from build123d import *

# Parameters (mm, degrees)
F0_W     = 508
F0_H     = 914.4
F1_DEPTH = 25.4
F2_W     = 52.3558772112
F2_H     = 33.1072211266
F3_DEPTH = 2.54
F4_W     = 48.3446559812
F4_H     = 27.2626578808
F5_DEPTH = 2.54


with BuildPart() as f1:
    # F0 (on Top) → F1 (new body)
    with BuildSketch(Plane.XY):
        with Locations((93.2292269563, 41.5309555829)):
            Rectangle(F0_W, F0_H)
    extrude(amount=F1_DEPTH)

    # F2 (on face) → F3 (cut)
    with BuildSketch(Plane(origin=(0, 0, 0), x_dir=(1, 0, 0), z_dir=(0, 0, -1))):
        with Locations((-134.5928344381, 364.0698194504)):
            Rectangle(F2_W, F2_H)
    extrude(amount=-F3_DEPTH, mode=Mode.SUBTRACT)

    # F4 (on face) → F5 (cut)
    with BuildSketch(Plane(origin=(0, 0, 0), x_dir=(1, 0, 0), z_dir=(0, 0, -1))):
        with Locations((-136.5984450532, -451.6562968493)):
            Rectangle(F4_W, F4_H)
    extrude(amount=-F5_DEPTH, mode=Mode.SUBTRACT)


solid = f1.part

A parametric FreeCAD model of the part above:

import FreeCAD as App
import Part
import Sketcher

V = App.Vector
Q = App.Units.Quantity

doc = App.newDocument("Part")
body = doc.addObject("PartDesign::Body", "Body")

# Sketch on XY plane
sketch1 = body.newObject("Sketcher::SketchObject", "Sketch")
sketch1.AttachmentSupport = (doc.getObject("XY_Plane"), [""])
sketch1.MapMode = "FlatFace"
sketch1.addGeometry(Part.LineSegment(V(-161, 499, 0), V(-161, -416, 0)), False)
sketch1.addGeometry(Part.LineSegment(V(-161, -416, 0), V(347, -416, 0)), False)
sketch1.addGeometry(Part.LineSegment(V(347, -416, 0), V(347, 499, 0)), False)
sketch1.addGeometry(Part.LineSegment(V(347, 499, 0), V(-161, 499, 0)), False)
sketch1.addConstraint(Sketcher.Constraint("Coincident", 0, 2, 1, 1))
sketch1.addConstraint(Sketcher.Constraint("Coincident", 1, 2, 2, 1))
sketch1.addConstraint(Sketcher.Constraint("Coincident", 2, 2, 3, 1))
sketch1.addConstraint(Sketcher.Constraint("Coincident", 3, 2, 0, 1))
sketch1.addConstraint(Sketcher.Constraint("Vertical", 0))
sketch1.addConstraint(Sketcher.Constraint("Horizontal", 1))
sketch1.addConstraint(Sketcher.Constraint("Vertical", 2))
sketch1.addConstraint(Sketcher.Constraint("Horizontal", 3))
sketch1.addConstraint(Sketcher.Constraint("DistanceX", 1, 1, 1, 2, Q("20 in")))
sketch1.addConstraint(Sketcher.Constraint("DistanceY", 0, 2, 0, 1, Q("36 in")))
sketch1.addConstraint(Sketcher.Constraint("DistanceX", 0, 2, -1, 1, 160.770773))
sketch1.addConstraint(Sketcher.Constraint("DistanceY", 0, 2, -1, 1, 415.669044))
pad1 = body.newObject("PartDesign::Pad", "Pad")
pad1.Profile = sketch1
pad1.Length = Q("1 in")

# Sketch on XY plane
sketch2 = body.newObject("Sketcher::SketchObject", "Sketch001")
sketch2.AttachmentSupport = (doc.getObject("XY_Plane"), [""])
sketch2.MapMode = "FlatFace"
sketch2.addGeometry(Part.LineSegment(V(-161, -381, 0), V(-161, -348, 0)), False)
sketch2.addGeometry(Part.LineSegment(V(-161, -348, 0), V(-108, -348, 0)), False)
sketch2.addGeometry(Part.LineSegment(V(-108, -348, 0), V(-108, -381, 0)), False)
sketch2.addGeometry(Part.LineSegment(V(-108, -381, 0), V(-161, -381, 0)), False)
sketch2.addConstraint(Sketcher.Constraint("Coincident", 0, 2, 1, 1))
sketch2.addConstraint(Sketcher.Constraint("Coincident", 1, 2, 2, 1))
sketch2.addConstraint(Sketcher.Constraint("Coincident", 2, 2, 3, 1))
sketch2.addConstraint(Sketcher.Constraint("Coincident", 3, 2, 0, 1))
sketch2.addConstraint(Sketcher.Constraint("Vertical", 0))
sketch2.addConstraint(Sketcher.Constraint("Horizontal", 1))
sketch2.addConstraint(Sketcher.Constraint("Vertical", 2))
sketch2.addConstraint(Sketcher.Constraint("Horizontal", 3))
sketch2.addConstraint(Sketcher.Constraint("DistanceY", 0, 1, 0, 2, 33.107221))
sketch2.addConstraint(Sketcher.Constraint("DistanceX", 1, 1, 1, 2, 52.355877))
sketch2.addConstraint(Sketcher.Constraint("DistanceY", 0, 2, -1, 1, 347.516209))
sketch2.addConstraint(Sketcher.Constraint("DistanceX", 0, 2, -1, 1, 160.770773))
pocket1 = body.newObject("PartDesign::Pocket", "Pocket")
pocket1.Profile = sketch2
pocket1.Length = Q("0.1 in")
pocket1.Reversed = True

# Sketch on XY plane
sketch3 = body.newObject("Sketcher::SketchObject", "Sketch002")
sketch3.AttachmentSupport = (doc.getObject("XY_Plane"), [""])
sketch3.MapMode = "FlatFace"
sketch3.addGeometry(Part.LineSegment(V(-161, 438, 0), V(-161, 465, 0)), False)
sketch3.addGeometry(Part.LineSegment(V(-161, 465, 0), V(-112, 465, 0)), False)
sketch3.addGeometry(Part.LineSegment(V(-112, 465, 0), V(-112, 438, 0)), False)
sketch3.addGeometry(Part.LineSegment(V(-112, 438, 0), V(-161, 438, 0)), False)
sketch3.addConstraint(Sketcher.Constraint("Coincident", 0, 2, 1, 1))
sketch3.addConstraint(Sketcher.Constraint("Coincident", 1, 2, 2, 1))
sketch3.addConstraint(Sketcher.Constraint("Coincident", 2, 2, 3, 1))
sketch3.addConstraint(Sketcher.Constraint("Coincident", 3, 2, 0, 1))
sketch3.addConstraint(Sketcher.Constraint("Vertical", 0))
sketch3.addConstraint(Sketcher.Constraint("Horizontal", 1))
sketch3.addConstraint(Sketcher.Constraint("Vertical", 2))
sketch3.addConstraint(Sketcher.Constraint("Horizontal", 3))
sketch3.addConstraint(Sketcher.Constraint("DistanceX", 1, 1, 1, 2, 48.344656))
sketch3.addConstraint(Sketcher.Constraint("DistanceY", 0, 1, 0, 2, 27.262658))
sketch3.addConstraint(Sketcher.Constraint("DistanceX", 0, 2, -1, 1, 160.770773))
sketch3.addConstraint(Sketcher.Constraint("DistanceY", -1, 1, 0, 2, 465.287626))
pocket2 = body.newObject("PartDesign::Pocket", "Pocket001")
pocket2.Profile = sketch3
pocket2.Length = Q("0.1 in")
pocket2.Reversed = True

doc.recompute()
